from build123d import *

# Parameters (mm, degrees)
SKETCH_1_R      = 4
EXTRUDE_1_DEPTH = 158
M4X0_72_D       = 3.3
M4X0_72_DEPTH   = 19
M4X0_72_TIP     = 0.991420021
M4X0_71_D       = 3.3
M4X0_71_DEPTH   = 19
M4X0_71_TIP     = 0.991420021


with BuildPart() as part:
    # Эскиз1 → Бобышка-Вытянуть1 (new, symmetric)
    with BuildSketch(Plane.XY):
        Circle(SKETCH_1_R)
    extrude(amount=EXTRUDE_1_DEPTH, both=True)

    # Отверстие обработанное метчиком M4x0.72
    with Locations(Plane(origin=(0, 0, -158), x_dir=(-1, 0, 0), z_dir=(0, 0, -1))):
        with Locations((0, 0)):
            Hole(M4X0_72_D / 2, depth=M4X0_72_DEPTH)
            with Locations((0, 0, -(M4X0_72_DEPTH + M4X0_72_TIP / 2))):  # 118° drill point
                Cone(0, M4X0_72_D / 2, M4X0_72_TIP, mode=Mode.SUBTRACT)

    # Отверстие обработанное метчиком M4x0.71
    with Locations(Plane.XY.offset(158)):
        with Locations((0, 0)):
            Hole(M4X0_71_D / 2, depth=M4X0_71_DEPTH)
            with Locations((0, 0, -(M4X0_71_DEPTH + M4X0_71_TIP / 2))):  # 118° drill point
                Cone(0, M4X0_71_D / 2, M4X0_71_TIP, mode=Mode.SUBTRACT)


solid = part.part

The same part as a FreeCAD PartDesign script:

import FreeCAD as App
import Part
import Sketcher
from FreeCAD import Vector

doc = App.newDocument("Part")
params = doc.addObject("Spreadsheet::Sheet", "Params")
for row, (alias, value) in enumerate([
    ("sketch1_diameter", "8 mm"),
    ("pad1_length", "316 mm"),
    ("sketch2_diameter", "3.3 mm"),
    ("hole_diameter", "3.3 mm"),
    ("hole_depth", "19 mm"),
    ("sketch3_diameter", "3.3 mm"),
    ("hole2_diameter", "3.3 mm"),
    ("hole2_depth", "19 mm"),
], start=1):
    params.set(f"A{row}", alias)
    params.set(f"B{row}", "=" + value)
    params.setAlias(f"B{row}", alias)

body = doc.addObject("PartDesign::Body", "Body")

# Sketch on XY plane
sketch1 = body.newObject("Sketcher::SketchObject", "Sketch")
sketch1.AttachmentSupport = (doc.getObject("XY_Plane"), [""])
sketch1.MapMode = "FlatFace"
sketch1.addGeometry(Part.Circle(Vector(0, 0, 0), Vector(0, 0, 1), 4), False)
sketch1.addConstraint([
    Sketcher.Constraint("Coincident", 0, 3, -1, 1),
    Sketcher.Constraint("Diameter", 0, 8.0),
])
sketch1.setExpression("Constraints[1]", "Params.sketch1_diameter")
pad1 = body.newObject("PartDesign::Pad", "Pad")
pad1.Profile = sketch1
pad1.setExpression("Length", "Params.pad1_length")
pad1.Midplane = True

# Sketch on XY plane
sketch2 = body.newObject("Sketcher::SketchObject", "Sketch001")
sketch2.AttachmentSupport = (doc.getObject("XY_Plane"), [""])
sketch2.MapMode = "FlatFace"
sketch2.AttachmentOffset = App.Placement(Vector(0, 0, -158), App.Rotation())
sketch2.addGeometry(Part.Circle(Vector(0, 0, 0), Vector(0, 0, 1), 1.6), False)
sketch2.addConstraint([
    Sketcher.Constraint("Coincident", 0, 3, -1, 1),
    Sketcher.Constraint("Diameter", 0, 3.3),
])
sketch2.setExpression("Constraints[1]", "Params.sketch2_diameter")
doc.recompute()
hole = body.newObject("PartDesign::Hole", "Hole")
hole.Profile = sketch2
hole.ThreadType = "None"
hole.setExpression("Diameter", "Params.hole_diameter")
hole.DepthType = "Dimension"
hole.setExpression("Depth", "Params.hole_depth")
hole.DrillPoint = "Angled"
hole.DrillPointAngle = 118
hole.Reversed = True

# Sketch on XY plane
sketch3 = body.newObject("Sketcher::SketchObject", "Sketch002")
sketch3.AttachmentSupport = (doc.getObject("XY_Plane"), [""])
sketch3.MapMode = "FlatFace"
sketch3.AttachmentOffset = App.Placement(Vector(0, 0, 158), App.Rotation())
sketch3.addGeometry(Part.Circle(Vector(0, 0, 0), Vector(0, 0, 1), 1.6), False)
sketch3.addConstraint([
    Sketcher.Constraint("Coincident", 0, 3, -1, 1),
    Sketcher.Constraint("Diameter", 0, 3.3),
])
sketch3.setExpression("Constraints[1]", "Params.sketch3_diameter")
doc.recompute()
hole2 = body.newObject("PartDesign::Hole", "Hole001")
hole2.Profile = sketch3
hole2.ThreadType = "None"
hole2.setExpression("Diameter", "Params.hole2_diameter")
hole2.DepthType = "Dimension"
hole2.setExpression("Depth", "Params.hole2_depth")
hole2.DrillPoint = "Angled"
hole2.DrillPointAngle = 118

doc.recompute()
